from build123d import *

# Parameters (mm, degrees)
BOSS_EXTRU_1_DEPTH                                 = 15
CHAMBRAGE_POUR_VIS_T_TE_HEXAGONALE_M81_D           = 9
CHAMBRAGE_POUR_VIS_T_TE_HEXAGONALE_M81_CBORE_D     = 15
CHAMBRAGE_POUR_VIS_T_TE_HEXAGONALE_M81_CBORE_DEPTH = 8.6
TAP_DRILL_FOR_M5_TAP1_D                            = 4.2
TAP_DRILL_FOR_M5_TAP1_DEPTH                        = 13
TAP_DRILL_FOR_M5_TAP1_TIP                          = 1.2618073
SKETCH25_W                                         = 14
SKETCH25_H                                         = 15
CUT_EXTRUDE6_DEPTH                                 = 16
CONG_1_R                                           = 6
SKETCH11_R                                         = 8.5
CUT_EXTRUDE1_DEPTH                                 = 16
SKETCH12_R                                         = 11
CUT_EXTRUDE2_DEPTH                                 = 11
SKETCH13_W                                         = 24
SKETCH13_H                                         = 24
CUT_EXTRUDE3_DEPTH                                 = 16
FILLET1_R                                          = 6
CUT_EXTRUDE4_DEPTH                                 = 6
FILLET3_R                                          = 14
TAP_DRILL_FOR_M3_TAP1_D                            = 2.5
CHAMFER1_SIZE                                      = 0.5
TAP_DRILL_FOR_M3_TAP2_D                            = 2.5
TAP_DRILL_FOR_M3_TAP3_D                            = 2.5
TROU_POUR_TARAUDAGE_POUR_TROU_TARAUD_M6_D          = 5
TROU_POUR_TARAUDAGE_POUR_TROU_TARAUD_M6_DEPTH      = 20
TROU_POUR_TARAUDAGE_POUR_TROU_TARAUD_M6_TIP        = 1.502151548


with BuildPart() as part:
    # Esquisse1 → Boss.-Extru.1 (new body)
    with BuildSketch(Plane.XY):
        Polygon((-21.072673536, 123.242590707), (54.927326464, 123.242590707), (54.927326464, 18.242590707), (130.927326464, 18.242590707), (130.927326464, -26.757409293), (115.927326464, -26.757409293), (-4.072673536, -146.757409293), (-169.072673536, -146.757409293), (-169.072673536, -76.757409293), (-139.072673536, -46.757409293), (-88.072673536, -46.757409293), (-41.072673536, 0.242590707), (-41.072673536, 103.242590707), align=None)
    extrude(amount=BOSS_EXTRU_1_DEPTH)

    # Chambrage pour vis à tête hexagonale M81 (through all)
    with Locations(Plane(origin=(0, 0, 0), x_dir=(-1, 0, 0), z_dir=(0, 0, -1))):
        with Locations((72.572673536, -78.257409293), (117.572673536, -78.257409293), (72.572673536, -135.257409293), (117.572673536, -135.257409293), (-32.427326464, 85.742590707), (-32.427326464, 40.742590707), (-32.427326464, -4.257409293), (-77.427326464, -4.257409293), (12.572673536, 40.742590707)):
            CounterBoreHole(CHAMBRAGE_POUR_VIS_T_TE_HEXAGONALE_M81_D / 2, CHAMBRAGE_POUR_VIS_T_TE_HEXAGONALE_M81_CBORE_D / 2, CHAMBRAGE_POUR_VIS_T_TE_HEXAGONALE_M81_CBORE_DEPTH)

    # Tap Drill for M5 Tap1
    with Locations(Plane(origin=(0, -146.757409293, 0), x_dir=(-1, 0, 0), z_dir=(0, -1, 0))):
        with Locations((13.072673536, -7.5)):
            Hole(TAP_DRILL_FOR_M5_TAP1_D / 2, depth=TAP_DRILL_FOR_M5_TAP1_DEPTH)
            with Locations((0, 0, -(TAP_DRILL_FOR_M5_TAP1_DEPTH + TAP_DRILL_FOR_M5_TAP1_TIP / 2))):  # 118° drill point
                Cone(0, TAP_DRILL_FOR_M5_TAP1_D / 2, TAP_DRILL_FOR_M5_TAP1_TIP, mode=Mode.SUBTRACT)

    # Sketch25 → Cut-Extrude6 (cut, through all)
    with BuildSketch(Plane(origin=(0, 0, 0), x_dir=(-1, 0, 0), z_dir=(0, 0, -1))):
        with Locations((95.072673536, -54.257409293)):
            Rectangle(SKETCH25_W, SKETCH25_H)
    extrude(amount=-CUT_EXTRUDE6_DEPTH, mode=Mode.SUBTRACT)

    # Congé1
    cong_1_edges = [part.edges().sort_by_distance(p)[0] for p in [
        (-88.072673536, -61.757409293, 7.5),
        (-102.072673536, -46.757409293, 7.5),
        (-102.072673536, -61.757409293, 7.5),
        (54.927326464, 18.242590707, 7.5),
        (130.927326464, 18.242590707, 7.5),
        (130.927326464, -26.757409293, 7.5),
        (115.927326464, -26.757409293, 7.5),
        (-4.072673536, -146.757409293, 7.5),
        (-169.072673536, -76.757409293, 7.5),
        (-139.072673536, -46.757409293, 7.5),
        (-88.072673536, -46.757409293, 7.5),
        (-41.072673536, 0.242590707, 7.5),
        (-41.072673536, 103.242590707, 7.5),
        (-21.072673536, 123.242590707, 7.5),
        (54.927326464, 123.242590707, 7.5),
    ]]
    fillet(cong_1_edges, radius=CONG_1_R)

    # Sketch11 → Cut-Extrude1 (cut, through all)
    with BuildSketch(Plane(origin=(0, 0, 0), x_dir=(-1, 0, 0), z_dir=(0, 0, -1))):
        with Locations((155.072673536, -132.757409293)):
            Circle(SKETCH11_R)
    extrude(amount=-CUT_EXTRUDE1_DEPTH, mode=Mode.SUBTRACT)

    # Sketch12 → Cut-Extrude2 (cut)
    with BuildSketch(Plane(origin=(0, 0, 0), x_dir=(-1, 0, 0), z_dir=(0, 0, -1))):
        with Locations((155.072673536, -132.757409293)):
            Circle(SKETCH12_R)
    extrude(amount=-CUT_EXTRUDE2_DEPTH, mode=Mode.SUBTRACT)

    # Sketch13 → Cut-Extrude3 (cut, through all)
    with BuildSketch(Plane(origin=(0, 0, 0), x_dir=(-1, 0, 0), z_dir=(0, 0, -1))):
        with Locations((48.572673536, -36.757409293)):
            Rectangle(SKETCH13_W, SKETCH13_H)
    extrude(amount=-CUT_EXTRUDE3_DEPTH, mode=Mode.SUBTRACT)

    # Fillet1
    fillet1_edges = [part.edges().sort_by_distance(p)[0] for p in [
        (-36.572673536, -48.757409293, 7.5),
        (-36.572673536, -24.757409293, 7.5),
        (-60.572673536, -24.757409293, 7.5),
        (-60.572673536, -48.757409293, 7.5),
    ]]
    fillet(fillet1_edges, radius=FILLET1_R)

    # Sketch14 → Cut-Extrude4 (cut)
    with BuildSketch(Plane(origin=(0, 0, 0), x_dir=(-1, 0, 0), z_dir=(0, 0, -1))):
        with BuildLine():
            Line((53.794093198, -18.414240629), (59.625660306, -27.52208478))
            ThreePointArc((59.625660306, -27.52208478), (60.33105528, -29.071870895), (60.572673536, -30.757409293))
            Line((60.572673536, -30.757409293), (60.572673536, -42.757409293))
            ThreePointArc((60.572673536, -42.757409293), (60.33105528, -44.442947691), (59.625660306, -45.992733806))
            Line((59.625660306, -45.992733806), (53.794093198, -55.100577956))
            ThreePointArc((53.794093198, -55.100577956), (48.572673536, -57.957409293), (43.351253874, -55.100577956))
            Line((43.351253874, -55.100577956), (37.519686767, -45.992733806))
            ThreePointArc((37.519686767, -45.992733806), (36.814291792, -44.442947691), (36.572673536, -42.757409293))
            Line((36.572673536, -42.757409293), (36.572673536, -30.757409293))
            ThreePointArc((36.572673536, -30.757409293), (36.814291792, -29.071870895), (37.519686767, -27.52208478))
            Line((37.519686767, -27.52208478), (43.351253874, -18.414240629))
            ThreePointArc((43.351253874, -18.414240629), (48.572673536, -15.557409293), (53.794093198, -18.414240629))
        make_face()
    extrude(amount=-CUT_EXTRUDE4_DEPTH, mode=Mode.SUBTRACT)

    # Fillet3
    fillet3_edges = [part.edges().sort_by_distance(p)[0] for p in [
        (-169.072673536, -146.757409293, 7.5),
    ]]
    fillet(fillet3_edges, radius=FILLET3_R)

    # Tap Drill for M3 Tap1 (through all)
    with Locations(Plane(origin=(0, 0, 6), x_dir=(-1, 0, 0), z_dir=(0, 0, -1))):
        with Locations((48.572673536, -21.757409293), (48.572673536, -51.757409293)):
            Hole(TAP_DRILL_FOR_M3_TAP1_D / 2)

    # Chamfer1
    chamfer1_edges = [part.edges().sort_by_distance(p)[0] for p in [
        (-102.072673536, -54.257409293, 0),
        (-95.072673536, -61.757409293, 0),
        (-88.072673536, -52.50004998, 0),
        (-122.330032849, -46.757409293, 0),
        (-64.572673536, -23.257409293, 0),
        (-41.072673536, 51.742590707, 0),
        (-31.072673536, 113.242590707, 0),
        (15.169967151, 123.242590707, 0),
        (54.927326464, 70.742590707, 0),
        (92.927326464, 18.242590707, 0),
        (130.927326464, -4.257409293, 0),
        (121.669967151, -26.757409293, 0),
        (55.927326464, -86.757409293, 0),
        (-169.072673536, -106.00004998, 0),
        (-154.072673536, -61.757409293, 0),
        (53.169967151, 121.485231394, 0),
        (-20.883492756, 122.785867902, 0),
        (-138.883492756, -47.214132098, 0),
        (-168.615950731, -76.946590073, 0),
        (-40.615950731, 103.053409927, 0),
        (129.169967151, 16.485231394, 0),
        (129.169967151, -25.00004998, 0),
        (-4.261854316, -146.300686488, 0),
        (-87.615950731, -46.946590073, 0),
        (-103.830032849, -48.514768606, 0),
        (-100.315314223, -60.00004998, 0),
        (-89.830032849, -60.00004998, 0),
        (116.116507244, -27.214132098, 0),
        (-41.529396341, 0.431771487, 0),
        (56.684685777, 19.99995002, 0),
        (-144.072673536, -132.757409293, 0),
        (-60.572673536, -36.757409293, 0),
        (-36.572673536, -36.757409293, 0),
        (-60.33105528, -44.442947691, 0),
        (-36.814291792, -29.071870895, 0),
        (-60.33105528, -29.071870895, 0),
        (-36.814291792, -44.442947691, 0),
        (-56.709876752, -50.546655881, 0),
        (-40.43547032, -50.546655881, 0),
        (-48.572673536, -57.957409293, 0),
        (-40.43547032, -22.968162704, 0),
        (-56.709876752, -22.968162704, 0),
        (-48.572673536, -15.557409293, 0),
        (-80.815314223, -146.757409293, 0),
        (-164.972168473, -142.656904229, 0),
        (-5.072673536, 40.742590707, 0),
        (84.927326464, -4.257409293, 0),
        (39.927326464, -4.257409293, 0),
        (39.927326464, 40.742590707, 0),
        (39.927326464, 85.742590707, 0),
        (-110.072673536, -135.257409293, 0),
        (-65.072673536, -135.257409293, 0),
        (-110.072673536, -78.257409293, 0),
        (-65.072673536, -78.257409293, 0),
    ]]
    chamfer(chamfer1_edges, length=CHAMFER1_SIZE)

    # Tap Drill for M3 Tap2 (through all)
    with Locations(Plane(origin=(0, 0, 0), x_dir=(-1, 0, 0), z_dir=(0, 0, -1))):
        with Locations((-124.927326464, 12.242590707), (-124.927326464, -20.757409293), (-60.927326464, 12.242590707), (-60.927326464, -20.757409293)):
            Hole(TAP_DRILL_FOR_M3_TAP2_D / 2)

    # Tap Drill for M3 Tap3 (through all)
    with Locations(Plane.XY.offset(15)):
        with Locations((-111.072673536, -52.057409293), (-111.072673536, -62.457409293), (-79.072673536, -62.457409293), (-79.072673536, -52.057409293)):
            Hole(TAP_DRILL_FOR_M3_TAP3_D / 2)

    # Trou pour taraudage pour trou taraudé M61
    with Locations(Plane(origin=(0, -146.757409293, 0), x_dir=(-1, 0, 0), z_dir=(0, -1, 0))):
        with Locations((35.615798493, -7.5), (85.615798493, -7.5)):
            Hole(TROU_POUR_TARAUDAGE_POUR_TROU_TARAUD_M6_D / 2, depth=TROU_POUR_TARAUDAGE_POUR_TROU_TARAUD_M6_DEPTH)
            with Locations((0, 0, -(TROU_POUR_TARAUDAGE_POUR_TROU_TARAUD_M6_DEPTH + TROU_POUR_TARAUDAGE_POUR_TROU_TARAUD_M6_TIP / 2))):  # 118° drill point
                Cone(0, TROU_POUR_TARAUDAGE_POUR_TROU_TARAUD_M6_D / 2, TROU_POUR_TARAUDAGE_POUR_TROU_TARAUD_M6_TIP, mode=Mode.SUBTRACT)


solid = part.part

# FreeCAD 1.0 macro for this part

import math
import FreeCAD as App
import Part
import Sketcher
from FreeCAD import Vector


def edges_at(feature, points):
    """Names of the edges that pass closest to the given points."""
    edges = feature.Shape.Edges
    near = lambda p: min(range(len(edges)), key=lambda i: edges[i].distToShape(Part.Vertex(*p))[0])
    return sorted({f"Edge{near(p) + 1}" for p in points})

doc = App.newDocument("Part")
body = doc.addObject("PartDesign::Body", "Body")

# Sketch on XY plane
sketch1 = doc.addObject("Sketcher::SketchObject", "Sketch")
body.addObject(sketch1)
sketch1.AttachmentSupport = (doc.XY_Plane, [""])
sketch1.MapMode = "FlatFace"
sketch1.addGeometry(Part.LineSegment(Vector(54.927326, 123.242591, 0), Vector(-21.072674, 123.242591, 0)), False)
sketch1.addGeometry(Part.LineSegment(Vector(-21.072674, 123.242591, 0), Vector(-41.072674, 103.242591, 0)), False)
sketch1.addGeometry(Part.LineSegment(Vector(-41.072674, 103.242591, 0), Vector(-41.072674, 0.242591, 0)), False)
sketch1.addGeometry(Part.LineSegment(Vector(-41.072674, 0.242591, 0), Vector(-88.072674, -46.757409, 0)), False)
sketch1.addGeometry(Part.LineSegment(Vector(-88.072674, -46.757409, 0), Vector(-139.072674, -46.757409, 0)), False)
sketch1.addGeometry(Part.LineSegment(Vector(-139.072674, -46.757409, 0), Vector(-169.072674, -76.757409, 0)), False)
sketch1.addGeometry(Part.LineSegment(Vector(-169.072674, -76.757409, 0), Vector(-169.072674, -146.757409, 0)), False)
sketch1.addGeometry(Part.LineSegment(Vector(-169.072674, -146.757409, 0), Vector(-4.072674, -146.757409, 0)), False)
sketch1.addGeometry(Part.LineSegment(Vector(-4.072674, -146.757409, 0), Vector(115.927326, -26.757409, 0)), False)
sketch1.addGeometry(Part.LineSegment(Vector(115.927326, -26.757409, 0), Vector(130.927326, -26.757409, 0)), False)
sketch1.addGeometry(Part.LineSegment(Vector(130.927326, -26.757409, 0), Vector(130.927326, 18.242591, 0)), False)
sketch1.addGeometry(Part.LineSegment(Vector(130.927326, 18.242591, 0), Vector(54.927326, 18.242591, 0)), False)
sketch1.addGeometry(Part.LineSegment(Vector(54.927326, 18.242591, 0), Vector(54.927326, 123.242591, 0)), False)
sketch1.addConstraint(Sketcher.Constraint("Coincident", 0, 2, 1, 1))
sketch1.addConstraint(Sketcher.Constraint("Coincident", 1, 2, 2, 1))
sketch1.addConstraint(Sketcher.Constraint("Coincident", 2, 2, 3, 1))
sketch1.addConstraint(Sketcher.Constraint("Coincident", 3, 2, 4, 1))
sketch1.addConstraint(Sketcher.Constraint("Coincident", 4, 2, 5, 1))
sketch1.addConstraint(Sketcher.Constraint("Coincident", 5, 2, 6, 1))
sketch1.addConstraint(Sketcher.Constraint("Coincident", 6, 2, 7, 1))
sketch1.addConstraint(Sketcher.Constraint("Coincident", 7, 2, 8, 1))
sketch1.addConstraint(Sketcher.Constraint("Coincident", 8, 2, 9, 1))
sketch1.addConstraint(Sketcher.Constraint("Coincident", 9, 2, 10, 1))
sketch1.addConstraint(Sketcher.Constraint("Coincident", 10, 2, 11, 1))
sketch1.addConstraint(Sketcher.Constraint("Coincident", 11, 2, 12, 1))
sketch1.addConstraint(Sketcher.Constraint("Coincident", 12, 2, 0, 1))
sketch1.addConstraint(Sketcher.Constraint("Horizontal", 0))
sketch1.addConstraint(Sketcher.Constraint("Vertical", 2))
sketch1.addConstraint(Sketcher.Constraint("Horizontal", 4))
sketch1.addConstraint(Sketcher.Constraint("Vertical", 6))
sketch1.addConstraint(Sketcher.Constraint("Horizontal", 7))
sketch1.addConstraint(Sketcher.Constraint("Horizontal", 9))
sketch1.addConstraint(Sketcher.Constraint("Vertical", 10))
sketch1.addConstraint(Sketcher.Constraint("Horizontal", 11))
sketch1.addConstraint(Sketcher.Constraint("Vertical", 12))
sketch1.addConstraint(Sketcher.Constraint("Parallel", 1, 3))
sketch1.addConstraint(Sketcher.Constraint("Parallel", 3, 5))
sketch1.addConstraint(Sketcher.Constraint("Parallel", 5, 8))
sketch1.addConstraint(Sketcher.Constraint("Equal", 0, 11))
sketch1.addConstraint(Sketcher.Constraint("DistanceX", 0, 2, 0, 1, 76.0))
sketch1.addConstraint(Sketcher.Constraint("DistanceX", 4, 2, 4, 1, 51.0))
sketch1.addConstraint(Sketcher.Constraint("DistanceX", 7, 1, 7, 2, 165.0))
sketch1.addConstraint(Sketcher.Constraint("DistanceX", 9, 1, 9, 2, 15.0))
sketch1.addConstraint(Sketcher.Constraint("DistanceY", 2, 2, 2, 1, 103.0))
sketch1.addConstraint(Sketcher.Constraint("DistanceY", 6, 2, 6, 1, 70.0))
sketch1.addConstraint(Sketcher.Constraint("DistanceY", 10, 1, 10, 2, 45.0))
sketch1.addConstraint(Sketcher.Constraint("DistanceY", 12, 1, 12, 2, 105.0))
sketch1.addConstraint(Sketcher.Constraint("DistanceX", 1, 2, 0, 2, 20.0))
sketch1.addConstraint(Sketcher.Constraint("DistanceX", 3, 2, 2, 2, 47.0))
sketch1.addConstraint(Sketcher.Constraint("DistanceX", 5, 2, 4, 2, 30.0))
sketch1.addConstraint(Sketcher.Constraint("DistanceY", -1, 1, 0, 2, 123.242591))
sketch1.addConstraint(Sketcher.Constraint("DistanceX", 0, 2, -1, 1, 21.072674))
pad1 = doc.addObject("PartDesign::Pad", "Pad")
body.addObject(pad1)
pad1.Profile = sketch1
pad1.Length = 15

# Sketch on XY plane
sketch2 = doc.addObject("Sketcher::SketchObject", "Sketch001")
body.addObject(sketch2)
sketch2.AttachmentSupport = (doc.XY_Plane, [""])
sketch2.MapMode = "FlatFace"
sketch2.addGeometry(Part.Circle(Vector(-72.572674, -78.257409, 0), Vector(0, 0, 1), 4.5), False)
sketch2.addGeometry(Part.Circle(Vector(-117.572674, -78.257409, 0), Vector(0, 0, 1), 4.5), False)
sketch2.addGeometry(Part.Circle(Vector(-72.572674, -135.257409, 0), Vector(0, 0, 1), 4.5), False)
sketch2.addGeometry(Part.Circle(Vector(-117.572674, -135.257409, 0), Vector(0, 0, 1), 4.5), False)
sketch2.addGeometry(Part.Circle(Vector(32.427326, 85.742591, 0), Vector(0, 0, 1), 4.5), False)
sketch2.addGeometry(Part.Circle(Vector(32.427326, 40.742591, 0), Vector(0, 0, 1), 4.5), False)
sketch2.addGeometry(Part.Circle(Vector(32.427326, -4.257409, 0), Vector(0, 0, 1), 4.5), False)
sketch2.addGeometry(Part.Circle(Vector(77.427326, -4.257409, 0), Vector(0, 0, 1), 4.5), False)
sketch2.addGeometry(Part.Circle(Vector(-12.572674, 40.742591, 0), Vector(0, 0, 1), 4.5), False)
sketch2.addConstraint(Sketcher.Constraint("Equal", 0, 1))
sketch2.addConstraint(Sketcher.Constraint("Equal", 1, 2))
sketch2.addConstraint(Sketcher.Constraint("Equal", 2, 3))
sketch2.addConstraint(Sketcher.Constraint("Equal", 3, 4))
sketch2.addConstraint(Sketcher.Constraint("Equal", 4, 5))
sketch2.addConstraint(Sketcher.Constraint("Equal", 5, 6))
sketch2.addConstraint(Sketcher.Constraint("Equal", 6, 7))
sketch2.addConstraint(Sketcher.Constraint("Equal", 7, 8))
sketch2.addConstraint(Sketcher.Constraint("Horizontal", 0, 3, 1, 3))
sketch2.addConstraint(Sketcher.Constraint("Horizontal", 2, 3, 3, 3))
sketch2.addConstraint(Sketcher.Constraint("Horizontal", 6, 3, 7, 3))
sketch2.addConstraint(Sketcher.Constraint("Horizontal", 5, 3, 8, 3))
sketch2.addConstraint(Sketcher.Constraint("Vertical", 0, 3, 2, 3))
sketch2.addConstraint(Sketcher.Constraint("Vertical", 1, 3, 3, 3))
sketch2.addConstraint(Sketcher.Constraint("Vertical", 4, 3, 5, 3))
sketch2.addConstraint(Sketcher.Constraint("Vertical", 5, 3, 6, 3))
sketch2.addConstraint(Sketcher.Constraint("Diameter", 0, 9.0))
sketch2.addConstraint(Sketcher.Constraint("DistanceX", 1, 3, 0, 3, 45.0))
sketch2.addConstraint(Sketcher.Constraint("DistanceY", 2, 3, 0, 3, 57.0))
sketch2.addConstraint(Sketcher.Constraint("DistanceX", 0, 3, 4, 3, 105.0))
sketch2.addConstraint(Sketcher.Constraint("DistanceY", 0, 3, 4, 3, 164.0))
sketch2.addConstraint(Sketcher.Constraint("DistanceY", 5, 3, 4, 3, 45.0))
sketch2.addConstraint(Sketcher.Constraint("DistanceY", 6, 3, 5, 3, 45.0))
sketch2.addConstraint(Sketcher.Constraint("DistanceX", 6, 3, 7, 3, 45.0))
sketch2.addConstraint(Sketcher.Constraint("DistanceX", 8, 3, 5, 3, 45.0))
sketch2.addConstraint(Sketcher.Constraint("DistanceY", 0, 3, -1, 1, 78.257409))
sketch2.addConstraint(Sketcher.Constraint("DistanceX", 0, 3, -1, 1, 72.572674))
doc.recompute()
hole = doc.addObject("PartDesign::Hole", "Hole")
body.addObject(hole)
hole.Profile = sketch2
hole.ThreadType = "None"
hole.Diameter = 9
hole.DepthType = "ThroughAll"
hole.HoleCutType = "Counterbore"
hole.HoleCutDiameter = 15
hole.HoleCutDepth = 8.6
hole.Reversed = True

# Sketch on XZ plane
sketch3 = doc.addObject("Sketcher::SketchObject", "Sketch002")
body.addObject(sketch3)
sketch3.AttachmentSupport = (doc.XZ_Plane, [""])
sketch3.MapMode = "FlatFace"
sketch3.AttachmentOffset = App.Placement(Vector(0, 0, 146.757409), App.Rotation())
sketch3.addGeometry(Part.Circle(Vector(-13.072674, 7.5, 0), Vector(0, 0, 1), 2.1), False)
sketch3.addConstraint(Sketcher.Constraint("Diameter", 0, 4.2))
sketch3.addConstraint(Sketcher.Constraint("DistanceY", -1, 1, 0, 3, 7.5))
sketch3.addConstraint(Sketcher.Constraint("DistanceX", 0, 3, -1, 1, 13.072674))
doc.recompute()
hole2 = doc.addObject("PartDesign::Hole", "Hole001")
body.addObject(hole2)
hole2.Profile = sketch3
hole2.ThreadType = "None"
hole2.Diameter = 4.2
hole2.DepthType = "Dimension"
hole2.Depth = 13
hole2.DrillPoint = "Angled"
hole2.DrillPointAngle = 118

# Sketch on XY plane
sketch4 = doc.addObject("Sketcher::SketchObject", "Sketch003")
body.addObject(sketch4)
sketch4.AttachmentSupport = (doc.XY_Plane, [""])
sketch4.MapMode = "FlatFace"
sketch4.addGeometry(Part.LineSegment(Vector(-88.072674, -46.757409, 0), Vector(-88.072674, -61.757409, 0)), False)
sketch4.addGeometry(Part.LineSegment(Vector(-88.072674, -61.757409, 0), Vector(-102.072674, -61.757409, 0)), False)
sketch4.addGeometry(Part.LineSegment(Vector(-102.072674, -61.757409, 0), Vector(-102.072674, -46.757409, 0)), False)
sketch4.addGeometry(Part.LineSegment(Vector(-102.072674, -46.757409, 0), Vector(-88.072674, -46.757409, 0)), False)
sketch4.addConstraint(Sketcher.Constraint("Coincident", 0, 2, 1, 1))
sketch4.addConstraint(Sketcher.Constraint("Coincident", 1, 2, 2, 1))
sketch4.addConstraint(Sketcher.Constraint("Coincident", 2, 2, 3, 1))
sketch4.addConstraint(Sketcher.Constraint("Coincident", 3, 2, 0, 1))
sketch4.addConstraint(Sketcher.Constraint("Vertical", 0))
sketch4.addConstraint(Sketcher.Constraint("Horizontal", 1))
sketch4.addConstraint(Sketcher.Constraint("Vertical", 2))
sketch4.addConstraint(Sketcher.Constraint("Horizontal", 3))
sketch4.addConstraint(Sketcher.Constraint("DistanceX", 1, 2, 1, 1, 14.0))
sketch4.addConstraint(Sketcher.Constraint("DistanceY", 0, 2, 0, 1, 15.0))
sketch4.addConstraint(Sketcher.Constraint("DistanceY", 0, 2, -1, 1, 61.757409))
sketch4.addConstraint(Sketcher.Constraint("DistanceX", 0, 2, -1, 1, 88.072674))
pocket1 = doc.addObject("PartDesign::Pocket", "Pocket")
body.addObject(pocket1)
pocket1.Profile = sketch4
pocket1.Type = "ThroughAll"
pocket1.Reversed = True
doc.recompute()

fillet = doc.addObject("PartDesign::Fillet", "Fillet")
body.addObject(fillet)
fillet.Base = (pocket1, edges_at(pocket1, [
    (-88.073, -61.757, 7.5),
    (-102.073, -46.757, 7.5),
    (-102.073, -61.757, 7.5),
    (54.927, 18.243, 7.5),
    (130.927, 18.243, 7.5),
    (130.927, -26.757, 7.5),
    (115.927, -26.757, 7.5),
    (-4.073, -146.757, 7.5),
    (-169.073, -76.757, 7.5),
    (-139.073, -46.757, 7.5),
    (-88.073, -46.757, 7.5),
    (-41.073, 0.243, 7.5),
    (-41.073, 103.243, 7.5),
    (-21.073, 123.243, 7.5),
    (54.927, 123.243, 7.5),
]))
fillet.Radius = 6

# Sketch on XY plane
sketch5 = doc.addObject("Sketcher::SketchObject", "Sketch004")
body.addObject(sketch5)
sketch5.AttachmentSupport = (doc.XY_Plane, [""])
sketch5.MapMode = "FlatFace"
sketch5.addGeometry(Part.Circle(Vector(-155.072674, -132.757409, 0), Vector(0, 0, 1), 8.5), False)
sketch5.addConstraint(Sketcher.Constraint("Diameter", 0, 17.0))
sketch5.addConstraint(Sketcher.Constraint("DistanceY", 0, 3, -1, 1, 132.757409))
sketch5.addConstraint(Sketcher.Constraint("DistanceX", 0, 3, -1, 1, 155.072674))
pocket2 = doc.addObject("PartDesign::Pocket", "Pocket001")
body.addObject(pocket2)
pocket2.Profile = sketch5
pocket2.Type = "ThroughAll"
pocket2.Reversed = True

# Sketch on XY plane
sketch6 = doc.addObject("Sketcher::SketchObject", "Sketch005")
body.addObject(sketch6)
sketch6.AttachmentSupport = (doc.XY_Plane, [""])
sketch6.MapMode = "FlatFace"
sketch6.addGeometry(Part.Circle(Vector(-155.072674, -132.757409, 0), Vector(0, 0, 1), 11), False)
sketch6.addConstraint(Sketcher.Constraint("Diameter", 0, 22.0))
sketch6.addConstraint(Sketcher.Constraint("DistanceY", 0, 3, -1, 1, 132.757409))
sketch6.addConstraint(Sketcher.Constraint("DistanceX", 0, 3, -1, 1, 155.072674))
pocket3 = doc.addObject("PartDesign::Pocket", "Pocket002")
body.addObject(pocket3)
pocket3.Profile = sketch6
pocket3.Length = 11
pocket3.Reversed = True

# Sketch on XY plane
sketch7 = doc.addObject("Sketcher::SketchObject", "Sketch006")
body.addObject(sketch7)
sketch7.AttachmentSupport = (doc.XY_Plane, [""])
sketch7.MapMode = "FlatFace"
sketch7.addGeometry(Part.LineSegment(Vector(-36.572674, -24.757409, 0), Vector(-36.572674, -48.757409, 0)), False)
sketch7.addGeometry(Part.LineSegment(Vector(-36.572674, -48.757409, 0), Vector(-60.572674, -48.757409, 0)), False)
sketch7.addGeometry(Part.LineSegment(Vector(-60.572674, -48.757409, 0), Vector(-60.572674, -24.757409, 0)), False)
sketch7.addGeometry(Part.LineSegment(Vector(-60.572674, -24.757409, 0), Vector(-36.572674, -24.757409, 0)), False)
sketch7.addConstraint(Sketcher.Constraint("Coincident", 0, 2, 1, 1))
sketch7.addConstraint(Sketcher.Constraint("Coincident", 1, 2, 2, 1))
sketch7.addConstraint(Sketcher.Constraint("Coincident", 2, 2, 3, 1))
sketch7.addConstraint(Sketcher.Constraint("Coincident", 3, 2, 0, 1))
sketch7.addConstraint(Sketcher.Constraint("Vertical", 0))
sketch7.addConstraint(Sketcher.Constraint("Horizontal", 1))
sketch7.addConstraint(Sketcher.Constraint("Vertical", 2))
sketch7.addConstraint(Sketcher.Constraint("Horizontal", 3))
sketch7.addConstraint(Sketcher.Constraint("Equal", 3, 0))
sketch7.addConstraint(Sketcher.Constraint("DistanceX", 1, 2, 1, 1, 24.0))
sketch7.addConstraint(Sketcher.Constraint("DistanceY", 0, 2, -1, 1, 48.757409))
sketch7.addConstraint(Sketcher.Constraint("DistanceX", 0, 2, -1, 1, 36.572674))
pocket4 = doc.addObject("PartDesign::Pocket", "Pocket003")
body.addObject(pocket4)
pocket4.Profile = sketch7
pocket4.Type = "ThroughAll"
pocket4.Reversed = True
doc.recompute()

fillet2 = doc.addObject("PartDesign::Fillet", "Fillet001")
body.addObject(fillet2)
fillet2.Base = (pocket4, edges_at(pocket4, [
    (-36.573, -48.757, 7.5),
    (-36.573, -24.757, 7.5),
    (-60.573, -24.757, 7.5),
    (-60.573, -48.757, 7.5),
]))
fillet2.Radius = 6

# Sketch on XY plane
sketch8 = doc.addObject("Sketcher::SketchObject", "Sketch007")
body.addObject(sketch8)
sketch8.AttachmentSupport = (doc.XY_Plane, [""])
sketch8.MapMode = "FlatFace"
sketch8.addGeometry(Part.LineSegment(Vector(-59.62566, -27.522085, 0), Vector(-53.794093, -18.414241, 0)), False)
sketch8.addGeometry(Part.ArcOfCircle(Part.Circle(Vector(-48.572674, -21.757409, 0), Vector(0, 0, 1), 6.2), math.radians(32.630608), math.radians(147.369392)), False)
sketch8.addGeometry(Part.LineSegment(Vector(-43.351254, -18.414241, 0), Vector(-37.519687, -27.522085, 0)), False)
sketch8.addGeometry(Part.ArcOfCircle(Part.Circle(Vector(-42.572674, -30.757409, 0), Vector(0, 0, 1), 6), math.radians(0), math.radians(32.630608)), False)
sketch8.addGeometry(Part.LineSegment(Vector(-36.572674, -30.757409, 0), Vector(-36.572674, -42.757409, 0)), False)
sketch8.addGeometry(Part.ArcOfCircle(Part.Circle(Vector(-42.572674, -42.757409, 0), Vector(0, 0, 1), 6), math.radians(-32.630608), math.radians(0)), False)
sketch8.addGeometry(Part.LineSegment(Vector(-37.519687, -45.992734, 0), Vector(-43.351254, -55.100578, 0)), False)
sketch8.addGeometry(Part.ArcOfCircle(Part.Circle(Vector(-48.572674, -51.757409, 0), Vector(0, 0, 1), 6.2), math.radians(-147.369392), math.radians(-32.630608)), False)
sketch8.addGeometry(Part.LineSegment(Vector(-53.794093, -55.100578, 0), Vector(-59.62566, -45.992734, 0)), False)
sketch8.addGeometry(Part.ArcOfCircle(Part.Circle(Vector(-54.572674, -42.757409, 0), Vector(0, 0, 1), 6), math.radians(180), math.radians(212.630608)), False)
sketch8.addGeometry(Part.LineSegment(Vector(-60.572674, -42.757409, 0), Vector(-60.572674, -30.757409, 0)), False)
sketch8.addGeometry(Part.ArcOfCircle(Part.Circle(Vector(-54.572674, -30.757409, 0), Vector(0, 0, 1), 6), math.radians(147.369392), math.radians(180)), False)
sketch8.addConstraint(Sketcher.Constraint("Tangent", 0, 2, 1, 2))
sketch8.addConstraint(Sketcher.Constraint("Tangent", 1, 1, 2, 1))
sketch8.addConstraint(Sketcher.Constraint("Tangent", 2, 2, 3, 2))
sketch8.addConstraint(Sketcher.Constraint("Tangent", 3, 1, 4, 1))
sketch8.addConstraint(Sketcher.Constraint("Tangent", 4, 2, 5, 2))
sketch8.addConstraint(Sketcher.Constraint("Tangent", 5, 1, 6, 1))
sketch8.addConstraint(Sketcher.Constraint("Tangent", 6, 2, 7, 2))
sketch8.addConstraint(Sketcher.Constraint("Tangent", 7, 1, 8, 1))
sketch8.addConstraint(Sketcher.Constraint("Tangent", 8, 2, 9, 2))
sketch8.addConstraint(Sketcher.Constraint("Tangent", 9, 1, 10, 1))
sketch8.addConstraint(Sketcher.Constraint("Tangent", 10, 2, 11, 2))
sketch8.addConstraint(Sketcher.Constraint("Tangent", 11, 1, 0, 1))
sketch8.addConstraint(Sketcher.Constraint("Vertical", 4))
sketch8.addConstraint(Sketcher.Constraint("Vertical", 10))
sketch8.addConstraint(Sketcher.Constraint("Equal", 3, 5))
sketch8.addConstraint(Sketcher.Constraint("Equal", 1, 7))
sketch8.addConstraint(Sketcher.Constraint("Equal", 5, 9))
sketch8.addConstraint(Sketcher.Constraint("Equal", 9, 11))
sketch8.addConstraint(Sketcher.Constraint("Parallel", 0, 6))
sketch8.addConstraint(Sketcher.Constraint("Parallel", 2, 8))
sketch8.addConstraint(Sketcher.Constraint("Horizontal", 5, 3, 9, 3))
sketch8.addConstraint(Sketcher.Constraint("Horizontal", 3, 3, 11, 3))
sketch8.addConstraint(Sketcher.Constraint("Horizontal", 0, 2, 1, 1))
sketch8.addConstraint(Sketcher.Constraint("Radius", 3, 6.0))
sketch8.addConstraint(Sketcher.Constraint("Radius", 1, 6.2))
sketch8.addConstraint(Sketcher.Constraint("DistanceY", 4, 2, 4, 1, 12.0))
sketch8.addConstraint(Sketcher.Constraint("DistanceX", 1, 3, 3, 3, 6.0))
sketch8.addConstraint(Sketcher.Constraint("DistanceY", 3, 3, 1, 3, 9.0))
sketch8.addConstraint(Sketcher.Constraint("DistanceY", 1, 3, -1, 1, 21.757409))
sketch8.addConstraint(Sketcher.Constraint("DistanceX", 8, 2, -1, 1, 59.62566))
pocket5 = doc.addObject("PartDesign::Pocket", "Pocket004")
body.addObject(pocket5)
pocket5.Profile = sketch8
pocket5.Length = 6
pocket5.Reversed = True
doc.recompute()

fillet3 = doc.addObject("PartDesign::Fillet", "Fillet002")
body.addObject(fillet3)
fillet3.Base = (pocket5, edges_at(pocket5, [(-169.073, -146.757, 7.5)]))
fillet3.Radius = 14

# Sketch on XY plane
sketch9 = doc.addObject("Sketcher::SketchObject", "Sketch008")
body.addObject(sketch9)
sketch9.AttachmentSupport = (doc.XY_Plane, [""])
sketch9.MapMode = "FlatFace"
sketch9.AttachmentOffset = App.Placement(Vector(0, 0, 6), App.Rotation())
sketch9.addGeometry(Part.Circle(Vector(-48.572674, -21.757409, 0), Vector(0, 0, 1), 1.25), False)
sketch9.addGeometry(Part.Circle(Vector(-48.572674, -51.757409, 0), Vector(0, 0, 1), 1.25), False)
sketch9.addConstraint(Sketcher.Constraint("Equal", 0, 1))
sketch9.addConstraint(Sketcher.Constraint("Vertical", 0, 3, 1, 3))
sketch9.addConstraint(Sketcher.Constraint("Diameter", 0, 2.5))
sketch9.addConstraint(Sketcher.Constraint("DistanceY", 1, 3, 0, 3, 30.0))
sketch9.addConstraint(Sketcher.Constraint("DistanceY", 0, 3, -1, 1, 21.757409))
sketch9.addConstraint(Sketcher.Constraint("DistanceX", 0, 3, -1, 1, 48.572674))
doc.recompute()
hole3 = doc.addObject("PartDesign::Hole", "Hole002")
body.addObject(hole3)
hole3.Profile = sketch9
hole3.ThreadType = "None"
hole3.Diameter = 2.5
hole3.DepthType = "ThroughAll"
hole3.Reversed = True
doc.recompute()

chamfer = doc.addObject("PartDesign::Chamfer", "Chamfer")
body.addObject(chamfer)
chamfer.Base = (hole3, edges_at(hole3, [
    (-102.073, -54.257, 0),
    (-95.073, -61.757, 0),
    (-88.073, -52.5, 0),
    (-122.33, -46.757, 0),
    (-64.573, -23.257, 0),
    (-41.073, 51.743, 0),
    (-31.073, 113.243, 0),
    (15.17, 123.243, 0),
    (54.927, 70.743, 0),
    (92.927, 18.243, 0),
    (130.927, -4.257, 0),
    (121.67, -26.757, 0),
    (55.927, -86.757, 0),
    (-169.073, -106, 0),
    (-154.073, -61.757, 0),
    (53.17, 121.485, 0),
    (-20.883, 122.786, 0),
    (-138.883, -47.214, 0),
    (-168.616, -76.947, 0),
    (-40.616, 103.053, 0),
    (129.17, 16.485, 0),
    (129.17, -25, 0),
    (-4.262, -146.301, 0),
    (-87.616, -46.947, 0),
    (-103.83, -48.515, 0),
    (-100.315, -60, 0),
    (-89.83, -60, 0),
    (116.117, -27.214, 0),
    (-41.529, 0.432, 0),
    (56.685, 20, 0),
    (-144.073, -132.757, 0),
    (-60.573, -36.757, 0),
    (-36.573, -36.757, 0),
    (-60.331, -44.443, 0),
    (-36.814, -29.072, 0),
    (-60.331, -29.072, 0),
    (-36.814, -44.443, 0),
    (-56.71, -50.547, 0),
    (-40.435, -50.547, 0),
    (-48.573, -57.957, 0),
    (-40.435, -22.968, 0),
    (-56.71, -22.968, 0),
    (-48.573, -15.557, 0),
    (-80.815, -146.757, 0),
    (-164.972, -142.657, 0),
    (-5.073, 40.743, 0),
    (84.927, -4.257, 0),
    (39.927, -4.257, 0),
    (39.927, 40.743, 0),
    (39.927, 85.743, 0),
    (-110.073, -135.257, 0),
    (-65.073, -135.257, 0),
    (-110.073, -78.257, 0),
    (-65.073, -78.257, 0),
]))
chamfer.Size = 0.5

# Sketch on XY plane
sketch10 = doc.addObject("Sketcher::SketchObject", "Sketch009")
body.addObject(sketch10)
sketch10.AttachmentSupport = (doc.XY_Plane, [""])
sketch10.MapMode = "FlatFace"
sketch10.addGeometry(Part.Circle(Vector(124.927326, 12.242591, 0), Vector(0, 0, 1), 1.25), False)
sketch10.addGeometry(Part.Circle(Vector(124.927326, -20.757409, 0), Vector(0, 0, 1), 1.25), False)
sketch10.addGeometry(Part.Circle(Vector(60.927326, 12.242591, 0), Vector(0, 0, 1), 1.25), False)
sketch10.addGeometry(Part.Circle(Vector(60.927326, -20.757409, 0), Vector(0, 0, 1), 1.25), False)
sketch10.addConstraint(Sketcher.Constraint("Equal", 0, 1))
sketch10.addConstraint(Sketcher.Constraint("Equal", 1, 2))
sketch10.addConstraint(Sketcher.Constraint("Equal", 2, 3))
sketch10.addConstraint(Sketcher.Constraint("Horizontal", 0, 3, 2, 3))
sketch10.addConstraint(Sketcher.Constraint("Horizontal", 1, 3, 3, 3))
sketch10.addConstraint(Sketcher.Constraint("Vertical", 0, 3, 1, 3))
sketch10.addConstraint(Sketcher.Constraint("Vertical", 2, 3, 3, 3))
sketch10.addConstraint(Sketcher.Constraint("Diameter", 0, 2.5))
sketch10.addConstraint(Sketcher.Constraint("DistanceY", 1, 3, 0, 3, 33.0))
sketch10.addConstraint(Sketcher.Constraint("DistanceX", 2, 3, 0, 3, 64.0))
sketch10.addConstraint(Sketcher.Constraint("DistanceY", -1, 1, 0, 3, 12.242591))
sketch10.addConstraint(Sketcher.Constraint("DistanceX", -1, 1, 0, 3, 124.927326))
doc.recompute()
hole4 = doc.addObject("PartDesign::Hole", "Hole003")
body.addObject(hole4)
hole4.Profile = sketch10
hole4.ThreadType = "None"
hole4.Diameter = 2.5
hole4.DepthType = "ThroughAll"
hole4.Reversed = True

# Sketch on XY plane
sketch11 = doc.addObject("Sketcher::SketchObject", "Sketch010")
body.addObject(sketch11)
sketch11.AttachmentSupport = (doc.XY_Plane, [""])
sketch11.MapMode = "FlatFace"
sketch11.AttachmentOffset = App.Placement(Vector(0, 0, 15), App.Rotation())
sketch11.addGeometry(Part.Circle(Vector(-111.072674, -52.057409, 0), Vector(0, 0, 1), 1.25), False)
sketch11.addGeometry(Part.Circle(Vector(-111.072674, -62.457409, 0), Vector(0, 0, 1), 1.25), False)
sketch11.addGeometry(Part.Circle(Vector(-79.072674, -62.457409, 0), Vector(0, 0, 1), 1.25), False)
sketch11.addGeometry(Part.Circle(Vector(-79.072674, -52.057409, 0), Vector(0, 0, 1), 1.25), False)
sketch11.addConstraint(Sketcher.Constraint("Equal", 0, 1))
sketch11.addConstraint(Sketcher.Constraint("Equal", 1, 2))
sketch11.addConstraint(Sketcher.Constraint("Equal", 2, 3))
sketch11.addConstraint(Sketcher.Constraint("Horizontal", 1, 3, 2, 3))
sketch11.addConstraint(Sketcher.Constraint("Horizontal", 0, 3, 3, 3))
sketch11.addConstraint(Sketcher.Constraint("Vertical", 0, 3, 1, 3))
sketch11.addConstraint(Sketcher.Constraint("Vertical", 2, 3, 3, 3))
sketch11.addConstraint(Sketcher.Constraint("Diameter", 0, 2.5))
sketch11.addConstraint(Sketcher.Constraint("DistanceX", 1, 3, 2, 3, 32.0))
sketch11.addConstraint(Sketcher.Constraint("DistanceY", 1, 3, 0, 3, 10.4))
sketch11.addConstraint(Sketcher.Constraint("DistanceY", 0, 3, -1, 1, 52.057409))
sketch11.addConstraint(Sketcher.Constraint("DistanceX", 0, 3, -1, 1, 111.072674))
doc.recompute()
hole5 = doc.addObject("PartDesign::Hole", "Hole004")
body.addObject(hole5)
hole5.Profile = sketch11
hole5.ThreadType = "None"
hole5.Diameter = 2.5
hole5.DepthType = "ThroughAll"

# Sketch on XZ plane
sketch12 = doc.addObject("Sketcher::SketchObject", "Sketch011")
body.addObject(sketch12)
sketch12.AttachmentSupport = (doc.XZ_Plane, [""])
sketch12.MapMode = "FlatFace"
sketch12.AttachmentOffset = App.Placement(Vector(0, 0, 146.757409), App.Rotation())
sketch12.addGeometry(Part.Circle(Vector(-35.615798, 7.5, 0), Vector(0, 0, 1), 2.5), False)
sketch12.addGeometry(Part.Circle(Vector(-85.615798, 7.5, 0), Vector(0, 0, 1), 2.5), False)
sketch12.addConstraint(Sketcher.Constraint("Equal", 0, 1))
sketch12.addConstraint(Sketcher.Constraint("Horizontal", 0, 3, 1, 3))
sketch12.addConstraint(Sketcher.Constraint("Diameter", 0, 5.0))
sketch12.addConstraint(Sketcher.Constraint("DistanceX", 1, 3, 0, 3, 50.0))
sketch12.addConstraint(Sketcher.Constraint("DistanceY", -1, 1, 0, 3, 7.5))
sketch12.addConstraint(Sketcher.Constraint("DistanceX", 0, 3, -1, 1, 35.615798))
doc.recompute()
hole6 = doc.addObject("PartDesign::Hole", "Hole005")
body.addObject(hole6)
hole6.Profile = sketch12
hole6.ThreadType = "None"
hole6.Diameter = 5
hole6.DepthType = "Dimension"
hole6.Depth = 20
hole6.DrillPoint = "Angled"
hole6.DrillPointAngle = 118

doc.recompute()
